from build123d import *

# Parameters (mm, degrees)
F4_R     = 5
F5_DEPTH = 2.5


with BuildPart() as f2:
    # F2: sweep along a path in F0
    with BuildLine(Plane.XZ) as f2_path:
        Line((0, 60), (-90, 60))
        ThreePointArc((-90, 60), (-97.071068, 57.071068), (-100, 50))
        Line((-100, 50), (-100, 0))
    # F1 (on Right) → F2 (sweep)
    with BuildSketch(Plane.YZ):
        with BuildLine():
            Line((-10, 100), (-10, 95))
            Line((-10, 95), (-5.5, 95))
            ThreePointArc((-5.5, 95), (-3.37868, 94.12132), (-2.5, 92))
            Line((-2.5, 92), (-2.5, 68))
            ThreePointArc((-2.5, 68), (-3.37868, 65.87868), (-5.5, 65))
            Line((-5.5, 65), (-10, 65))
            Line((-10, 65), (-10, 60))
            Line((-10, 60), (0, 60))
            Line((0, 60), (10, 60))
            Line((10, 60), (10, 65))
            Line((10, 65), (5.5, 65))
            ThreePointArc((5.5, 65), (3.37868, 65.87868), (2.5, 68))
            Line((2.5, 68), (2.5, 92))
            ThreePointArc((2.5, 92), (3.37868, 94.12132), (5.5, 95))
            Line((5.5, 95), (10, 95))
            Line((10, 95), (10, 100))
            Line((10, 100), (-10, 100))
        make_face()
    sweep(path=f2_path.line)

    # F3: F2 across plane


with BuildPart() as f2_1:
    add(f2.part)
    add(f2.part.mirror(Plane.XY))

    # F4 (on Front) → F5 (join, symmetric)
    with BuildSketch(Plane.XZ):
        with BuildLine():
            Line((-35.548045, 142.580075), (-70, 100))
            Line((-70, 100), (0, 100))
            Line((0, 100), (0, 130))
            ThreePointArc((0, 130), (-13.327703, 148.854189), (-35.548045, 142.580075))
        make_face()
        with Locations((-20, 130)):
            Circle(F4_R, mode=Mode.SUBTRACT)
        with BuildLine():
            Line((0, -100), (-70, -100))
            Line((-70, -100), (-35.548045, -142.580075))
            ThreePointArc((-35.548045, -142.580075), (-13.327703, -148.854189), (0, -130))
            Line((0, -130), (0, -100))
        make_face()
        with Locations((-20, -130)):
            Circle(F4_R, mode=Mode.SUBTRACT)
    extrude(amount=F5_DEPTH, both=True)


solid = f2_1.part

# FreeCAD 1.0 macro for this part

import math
import FreeCAD as App
import Part
import Sketcher
Q = App.Units.Quantity

doc = App.newDocument("Part")
body = doc.addObject("PartDesign::Body", "Body")

sketch1 = body.newObject("Sketcher::SketchObject", "Sketch")
sketch1.AttachmentSupport = (doc.getObject("YZ_Plane"), [""])
sketch1.MapMode = "FlatFace"
sketch1.addGeometry(Part.LineSegment(App.Vector(-10, 100, 0), App.Vector(-10, 95, 0)), False)
sketch1.addGeometry(Part.LineSegment(App.Vector(-10, 95, 0), App.Vector(-5.5, 95, 0)), False)
sketch1.addGeometry(Part.ArcOfCircle(Part.Circle(App.Vector(-5.5, 92, 0), App.Vector(0, 0, 1), 3), math.radians(0), math.radians(90)), False)
sketch1.addGeometry(Part.LineSegment(App.Vector(-2.5, 92, 0), App.Vector(-2.5, 68, 0)), False)
sketch1.addGeometry(Part.ArcOfCircle(Part.Circle(App.Vector(-5.5, 68, 0), App.Vector(0, 0, 1), 3), math.radians(-90), math.radians(0)), False)
sketch1.addGeometry(Part.LineSegment(App.Vector(-5.5, 65, 0), App.Vector(-10, 65, 0)), False)
sketch1.addGeometry(Part.LineSegment(App.Vector(-10, 65, 0), App.Vector(-10, 60, 0)), False)
sketch1.addGeometry(Part.LineSegment(App.Vector(-10, 60, 0), App.Vector(10, 60, 0)), False)
sketch1.addGeometry(Part.LineSegment(App.Vector(10, 60, 0), App.Vector(10, 65, 0)), False)
sketch1.addGeometry(Part.LineSegment(App.Vector(10, 65, 0), App.Vector(5.5, 65, 0)), False)
sketch1.addGeometry(Part.ArcOfCircle(Part.Circle(App.Vector(5.5, 68, 0), App.Vector(0, 0, 1), 3), math.radians(-180), math.radians(-90)), False)
sketch1.addGeometry(Part.LineSegment(App.Vector(2.5, 68, 0), App.Vector(2.5, 92, 0)), False)
sketch1.addGeometry(Part.ArcOfCircle(Part.Circle(App.Vector(5.5, 92, 0), App.Vector(0, 0, 1), 3), math.radians(90), math.radians(180)), False)
sketch1.addGeometry(Part.LineSegment(App.Vector(5.5, 95, 0), App.Vector(10, 95, 0)), False)
sketch1.addGeometry(Part.LineSegment(App.Vector(10, 95, 0), App.Vector(10, 100, 0)), False)
sketch1.addGeometry(Part.LineSegment(App.Vector(10, 100, 0), App.Vector(-10, 100, 0)), False)
sketch1.addConstraint(Sketcher.Constraint("Coincident", 0, 2, 1, 1))
sketch1.addConstraint(Sketcher.Constraint("Tangent", 1, 2, 2, 2))
sketch1.addConstraint(Sketcher.Constraint("Tangent", 2, 1, 3, 1))
sketch1.addConstraint(Sketcher.Constraint("Tangent", 3, 2, 4, 2))
sketch1.addConstraint(Sketcher.Constraint("Tangent", 4, 1, 5, 1))
sketch1.addConstraint(Sketcher.Constraint("Coincident", 5, 2, 6, 1))
sketch1.addConstraint(Sketcher.Constraint("Coincident", 6, 2, 7, 1))
sketch1.addConstraint(Sketcher.Constraint("Coincident", 7, 2, 8, 1))
sketch1.addConstraint(Sketcher.Constraint("Coincident", 8, 2, 9, 1))
sketch1.addConstraint(Sketcher.Constraint("Tangent", 9, 2, 10, 2))
sketch1.addConstraint(Sketcher.Constraint("Tangent", 10, 1, 11, 1))
sketch1.addConstraint(Sketcher.Constraint("Tangent", 11, 2, 12, 2))
sketch1.addConstraint(Sketcher.Constraint("Tangent", 12, 1, 13, 1))
sketch1.addConstraint(Sketcher.Constraint("Coincident", 13, 2, 14, 1))
sketch1.addConstraint(Sketcher.Constraint("Coincident", 14, 2, 15, 1))
sketch1.addConstraint(Sketcher.Constraint("Coincident", 15, 2, 0, 1))
sketch1.addConstraint(Sketcher.Constraint("Vertical", 0))
sketch1.addConstraint(Sketcher.Constraint("Horizontal", 1))
sketch1.addConstraint(Sketcher.Constraint("Vertical", 3))
sketch1.addConstraint(Sketcher.Constraint("Horizontal", 5))
sketch1.addConstraint(Sketcher.Constraint("Vertical", 6))
sketch1.addConstraint(Sketcher.Constraint("Horizontal", 7))
sketch1.addConstraint(Sketcher.Constraint("Vertical", 8))
sketch1.addConstraint(Sketcher.Constraint("Horizontal", 9))
sketch1.addConstraint(Sketcher.Constraint("Vertical", 11))
sketch1.addConstraint(Sketcher.Constraint("Horizontal", 13))
sketch1.addConstraint(Sketcher.Constraint("Vertical", 14))
sketch1.addConstraint(Sketcher.Constraint("Horizontal", 15))
sketch1.addConstraint(Sketcher.Constraint("Equal", 2, 4))
sketch1.addConstraint(Sketcher.Constraint("Equal", 4, 10))
sketch1.addConstraint(Sketcher.Constraint("Equal", 10, 12))
sketch1.addConstraint(Sketcher.Constraint("Symmetric", 4, 3, 10, 3, -2))
sketch1.addConstraint(Sketcher.Constraint("Symmetric", 0, 2, 13, 2, -2))
sketch1.addConstraint(Sketcher.Constraint("Vertical", 0, 2, 5, 2))
sketch1.addConstraint(Sketcher.Constraint("Vertical", 8, 2, 13, 2))
sketch1.addConstraint(Sketcher.Constraint("Equal", 0, 6))
sketch1.addConstraint(Sketcher.Constraint("Radius", 2, Q("3.000001 mm")))
sketch1.addConstraint(Sketcher.Constraint("DistanceX", 7, 1, 7, 2, Q("20 mm")))
sketch1.addConstraint(Sketcher.Constraint("DistanceY", 0, 2, 0, 1, Q("5 mm")))
sketch1.addConstraint(Sketcher.Constraint("DistanceY", 3, 2, 3, 1, Q("24 mm")))
sketch1.addConstraint(Sketcher.Constraint("DistanceX", 1, 1, 1, 2, Q("4.5 mm")))
sketch1.addConstraint(Sketcher.Constraint("DistanceY", -1, 1, 2, 3, Q("91.999999 mm")))

sketch2 = body.newObject("Sketcher::SketchObject", "Sketch001")
sketch2.AttachmentSupport = (doc.getObject("XZ_Plane"), [""])
sketch2.MapMode = "FlatFace"
sketch2.addGeometry(Part.LineSegment(App.Vector(0, 60, 0), App.Vector(-90, 60, 0)), False)
sketch2.addGeometry(Part.ArcOfCircle(Part.Circle(App.Vector(-90, 50, 0), App.Vector(0, 0, 1), 10), math.radians(90), math.radians(180)), False)
sketch2.addGeometry(Part.LineSegment(App.Vector(-100, 50, 0), App.Vector(-100, 0, 0)), False)
sketch2.addConstraint(Sketcher.Constraint("Tangent", 0, 2, 1, 1))
sketch2.addConstraint(Sketcher.Constraint("Tangent", 1, 2, 2, 1))
sketch2.addConstraint(Sketcher.Constraint("Horizontal", 0))
sketch2.addConstraint(Sketcher.Constraint("Vertical", 2))
sketch2.addConstraint(Sketcher.Constraint("PointOnObject", 0, 1, -2))
sketch2.addConstraint(Sketcher.Constraint("PointOnObject", 2, 2, -1))
sketch2.addConstraint(Sketcher.Constraint("Radius", 1, Q("9.999999 mm")))
sketch2.addConstraint(Sketcher.Constraint("DistanceX", 0, 2, 0, 1, Q("90 mm")))
sketch2.addConstraint(Sketcher.Constraint("DistanceY", 2, 2, 2, 1, Q("50 mm")))
doc.recompute()

additivepipe = body.newObject("PartDesign::AdditivePipe", "AdditivePipe")
additivepipe.Profile = sketch1
additivepipe.Spine = (sketch2, ["Edge1", "Edge2", "Edge3"])
body2 = doc.addObject("PartDesign::Body", "Body001")
doc.recompute()

body2.BaseFeature = body
doc.recompute()

mirroring = doc.addObject("Part::Mirroring", "Mirroring")
mirroring.Source = body
mirroring.Base = App.Vector(0, 0, 0)
mirroring.Normal = App.Vector(0, 0, 1)
body3 = doc.addObject("PartDesign::Body", "Body002")
body3.BaseFeature = mirroring
boolean = body2.newObject("PartDesign::Boolean", "Boolean")
boolean.Type = "Fuse"
boolean.addObjects([body3])
doc.recompute()

sketch3 = body2.newObject("Sketcher::SketchObject", "Sketch002")
sketch3.AttachmentSupport = (doc.getObject("XZ_Plane001"), [""])
sketch3.MapMode = "FlatFace"
sketch3.addGeometry(Part.LineSegment(App.Vector(-36, 143, 0), App.Vector(-70, 100, 0)), False)
sketch3.addGeometry(Part.LineSegment(App.Vector(-70, 100, 0), App.Vector(0, 100, 0)), False)
sketch3.addGeometry(Part.LineSegment(App.Vector(0, 100, 0), App.Vector(0, 130, 0)), False)
sketch3.addGeometry(Part.ArcOfCircle(Part.Circle(App.Vector(-20, 130, 0), App.Vector(0, 0, 1), 20), math.radians(0), math.radians(141)), False)
sketch3.addGeometry(Part.Circle(App.Vector(-20, 130, 0), App.Vector(0, 0, 1), 5), False)
sketch3.addGeometry(Part.LineSegment(App.Vector(0, -100, 0), App.Vector(-70, -100, 0)), False)
sketch3.addGeometry(Part.LineSegment(App.Vector(-70, -100, 0), App.Vector(-36, -143, 0)), False)
sketch3.addGeometry(Part.ArcOfCircle(Part.Circle(App.Vector(-20, -130, 0), App.Vector(0, 0, 1), 20), math.radians(-141), math.radians(0)), False)
sketch3.addGeometry(Part.LineSegment(App.Vector(0, -130, 0), App.Vector(0, -100, 0)), False)
sketch3.addGeometry(Part.Circle(App.Vector(-20, -130, 0), App.Vector(0, 0, 1), 5), False)
sketch3.addConstraint(Sketcher.Constraint("Coincident", 0, 2, 1, 1))
sketch3.addConstraint(Sketcher.Constraint("Coincident", 1, 2, 2, 1))
sketch3.addConstraint(Sketcher.Constraint("Tangent", 2, 2, 3, 1))
sketch3.addConstraint(Sketcher.Constraint("Tangent", 3, 2, 0, 1))
sketch3.addConstraint(Sketcher.Constraint("Coincident", 5, 2, 6, 1))
sketch3.addConstraint(Sketcher.Constraint("Tangent", 6, 2, 7, 1))
sketch3.addConstraint(Sketcher.Constraint("Tangent", 7, 2, 8, 1))
sketch3.addConstraint(Sketcher.Constraint("Coincident", 8, 2, 5, 1))
sketch3.addConstraint(Sketcher.Constraint("Horizontal", 1))
sketch3.addConstraint(Sketcher.Constraint("Vertical", 2))
sketch3.addConstraint(Sketcher.Constraint("Horizontal", 5))
sketch3.addConstraint(Sketcher.Constraint("Vertical", 8))
sketch3.addConstraint(Sketcher.Constraint("Coincident", 4, 3, 3, 3))
sketch3.addConstraint(Sketcher.Constraint("Coincident", 9, 3, 7, 3))
sketch3.addConstraint(Sketcher.Constraint("Equal", 3, 7))
sketch3.addConstraint(Sketcher.Constraint("Equal", 4, 9))
sketch3.addConstraint(Sketcher.Constraint("Symmetric", 2, 2, 7, 2, -1, 1))
sketch3.addConstraint(Sketcher.Constraint("Symmetric", 0, 2, 5, 2, -1))
sketch3.addConstraint(Sketcher.Constraint("PointOnObject", 1, 2, -2))
sketch3.addConstraint(Sketcher.Constraint("Diameter", 4, Q("10 mm")))
sketch3.addConstraint(Sketcher.Constraint("Radius", 3, Q("20 mm")))
sketch3.addConstraint(Sketcher.Constraint("DistanceX", 1, 1, 1, 2, Q("70 mm")))
sketch3.addConstraint(Sketcher.Constraint("DistanceY", 2, 1, 2, 2, Q("30 mm")))
sketch3.addConstraint(Sketcher.Constraint("DistanceY", -1, 1, 3, 3, Q("130 mm")))
pad1 = body2.newObject("PartDesign::Pad", "Pad")
pad1.Profile = sketch3
pad1.Length = 5
pad1.Midplane = True
mirroring.Visibility = False

doc.recompute()
